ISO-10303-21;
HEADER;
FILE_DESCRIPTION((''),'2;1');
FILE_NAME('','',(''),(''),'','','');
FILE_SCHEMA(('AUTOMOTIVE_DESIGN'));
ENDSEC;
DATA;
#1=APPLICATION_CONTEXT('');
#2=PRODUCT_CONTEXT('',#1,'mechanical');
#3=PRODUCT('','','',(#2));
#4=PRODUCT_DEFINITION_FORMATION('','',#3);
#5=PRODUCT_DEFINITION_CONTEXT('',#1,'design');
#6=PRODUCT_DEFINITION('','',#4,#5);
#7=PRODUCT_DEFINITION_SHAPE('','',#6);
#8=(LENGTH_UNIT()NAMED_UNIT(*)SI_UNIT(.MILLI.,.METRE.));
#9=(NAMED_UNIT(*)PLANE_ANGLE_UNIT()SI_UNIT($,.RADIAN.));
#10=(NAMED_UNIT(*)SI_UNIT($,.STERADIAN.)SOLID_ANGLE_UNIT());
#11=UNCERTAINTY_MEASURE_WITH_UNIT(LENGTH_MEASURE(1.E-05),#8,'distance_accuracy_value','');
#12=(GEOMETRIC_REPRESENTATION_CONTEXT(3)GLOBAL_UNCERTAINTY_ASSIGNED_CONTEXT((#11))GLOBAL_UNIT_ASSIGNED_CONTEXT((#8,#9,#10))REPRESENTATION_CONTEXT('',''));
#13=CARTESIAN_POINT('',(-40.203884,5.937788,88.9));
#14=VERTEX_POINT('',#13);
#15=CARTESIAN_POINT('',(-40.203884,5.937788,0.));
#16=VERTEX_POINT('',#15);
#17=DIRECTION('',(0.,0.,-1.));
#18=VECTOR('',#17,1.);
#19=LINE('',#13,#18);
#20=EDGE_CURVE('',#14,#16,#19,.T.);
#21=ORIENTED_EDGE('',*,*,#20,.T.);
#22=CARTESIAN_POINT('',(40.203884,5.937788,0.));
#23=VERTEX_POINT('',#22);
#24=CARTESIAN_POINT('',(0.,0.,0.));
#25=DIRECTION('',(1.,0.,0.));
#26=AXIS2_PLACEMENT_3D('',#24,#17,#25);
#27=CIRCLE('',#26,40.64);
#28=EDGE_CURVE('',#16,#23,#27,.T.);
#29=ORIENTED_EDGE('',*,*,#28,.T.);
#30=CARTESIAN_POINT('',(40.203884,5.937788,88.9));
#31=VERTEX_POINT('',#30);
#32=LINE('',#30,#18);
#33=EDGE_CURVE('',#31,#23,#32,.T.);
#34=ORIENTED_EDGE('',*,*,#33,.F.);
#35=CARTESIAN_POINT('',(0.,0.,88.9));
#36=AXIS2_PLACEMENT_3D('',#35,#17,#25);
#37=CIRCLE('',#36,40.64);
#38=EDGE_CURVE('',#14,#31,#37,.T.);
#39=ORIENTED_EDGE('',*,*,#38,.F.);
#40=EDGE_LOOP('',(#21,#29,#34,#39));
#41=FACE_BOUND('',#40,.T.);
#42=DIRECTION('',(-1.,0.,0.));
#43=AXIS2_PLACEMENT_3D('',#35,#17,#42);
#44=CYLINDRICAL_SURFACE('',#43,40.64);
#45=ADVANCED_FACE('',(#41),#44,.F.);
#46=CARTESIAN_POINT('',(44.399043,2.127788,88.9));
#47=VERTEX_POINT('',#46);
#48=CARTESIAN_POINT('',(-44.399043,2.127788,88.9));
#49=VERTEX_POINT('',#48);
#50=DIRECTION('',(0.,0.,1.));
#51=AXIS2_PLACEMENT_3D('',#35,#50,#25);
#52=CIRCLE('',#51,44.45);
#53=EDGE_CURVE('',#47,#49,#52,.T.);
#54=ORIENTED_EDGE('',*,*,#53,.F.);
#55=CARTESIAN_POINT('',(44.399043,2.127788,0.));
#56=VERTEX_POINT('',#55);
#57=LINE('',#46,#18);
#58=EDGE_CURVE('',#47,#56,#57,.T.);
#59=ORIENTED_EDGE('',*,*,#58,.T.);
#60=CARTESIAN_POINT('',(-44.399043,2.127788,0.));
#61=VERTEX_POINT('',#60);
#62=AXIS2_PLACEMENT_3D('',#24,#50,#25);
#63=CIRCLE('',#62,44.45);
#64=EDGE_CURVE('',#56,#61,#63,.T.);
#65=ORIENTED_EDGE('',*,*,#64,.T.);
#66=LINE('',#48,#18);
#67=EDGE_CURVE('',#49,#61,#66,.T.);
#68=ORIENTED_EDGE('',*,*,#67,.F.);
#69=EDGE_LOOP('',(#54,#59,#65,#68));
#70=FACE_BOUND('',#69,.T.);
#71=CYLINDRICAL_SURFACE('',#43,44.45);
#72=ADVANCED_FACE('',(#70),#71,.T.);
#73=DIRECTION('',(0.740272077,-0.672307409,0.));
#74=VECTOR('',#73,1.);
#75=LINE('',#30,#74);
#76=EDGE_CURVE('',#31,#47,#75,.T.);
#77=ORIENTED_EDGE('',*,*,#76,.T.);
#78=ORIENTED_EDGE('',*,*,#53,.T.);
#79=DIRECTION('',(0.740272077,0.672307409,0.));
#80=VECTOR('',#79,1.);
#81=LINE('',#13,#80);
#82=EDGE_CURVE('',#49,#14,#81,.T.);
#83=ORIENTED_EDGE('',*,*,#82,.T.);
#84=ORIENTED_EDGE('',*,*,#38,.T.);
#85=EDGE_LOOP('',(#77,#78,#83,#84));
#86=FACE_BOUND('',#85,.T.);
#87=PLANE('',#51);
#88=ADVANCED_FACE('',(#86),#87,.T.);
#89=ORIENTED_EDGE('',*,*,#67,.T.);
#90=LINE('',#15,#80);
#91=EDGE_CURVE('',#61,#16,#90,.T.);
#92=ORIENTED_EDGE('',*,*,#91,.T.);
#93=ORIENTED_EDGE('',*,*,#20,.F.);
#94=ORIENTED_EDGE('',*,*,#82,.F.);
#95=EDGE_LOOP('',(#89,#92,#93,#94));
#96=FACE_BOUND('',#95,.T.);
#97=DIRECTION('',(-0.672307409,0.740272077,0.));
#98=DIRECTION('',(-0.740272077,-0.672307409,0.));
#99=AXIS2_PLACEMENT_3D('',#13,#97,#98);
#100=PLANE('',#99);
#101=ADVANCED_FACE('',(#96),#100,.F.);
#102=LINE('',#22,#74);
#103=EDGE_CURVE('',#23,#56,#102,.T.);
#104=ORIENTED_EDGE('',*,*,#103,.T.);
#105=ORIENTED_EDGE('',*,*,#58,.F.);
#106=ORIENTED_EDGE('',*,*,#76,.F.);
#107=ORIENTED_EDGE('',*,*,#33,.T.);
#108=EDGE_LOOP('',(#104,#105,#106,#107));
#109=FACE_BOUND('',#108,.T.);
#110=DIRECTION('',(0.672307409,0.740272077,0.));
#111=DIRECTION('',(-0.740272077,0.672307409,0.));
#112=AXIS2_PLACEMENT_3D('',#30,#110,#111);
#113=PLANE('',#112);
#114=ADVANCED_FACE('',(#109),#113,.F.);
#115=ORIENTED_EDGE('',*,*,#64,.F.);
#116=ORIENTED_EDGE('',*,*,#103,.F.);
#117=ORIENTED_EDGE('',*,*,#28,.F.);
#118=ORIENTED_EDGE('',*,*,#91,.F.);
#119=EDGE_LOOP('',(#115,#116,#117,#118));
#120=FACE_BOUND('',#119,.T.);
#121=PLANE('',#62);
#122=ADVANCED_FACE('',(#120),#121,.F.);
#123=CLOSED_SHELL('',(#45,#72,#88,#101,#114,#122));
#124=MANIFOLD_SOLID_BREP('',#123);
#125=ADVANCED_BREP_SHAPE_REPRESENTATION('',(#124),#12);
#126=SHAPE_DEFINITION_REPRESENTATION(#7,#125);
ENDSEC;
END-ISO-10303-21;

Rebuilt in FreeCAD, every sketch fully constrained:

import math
import FreeCAD as App
import Part
import Sketcher
from FreeCAD import Vector
Q = App.Units.Quantity

doc = App.newDocument("Part")
body = doc.addObject("PartDesign::Body", "Body")

# Sketch on XY plane
sketch1 = body.newObject("Sketcher::SketchObject", "Sketch")
sketch1.AttachmentSupport = (doc.getObject("XY_Plane"), [""])
sketch1.MapMode = "FlatFace"
sketch1.addGeometry(Part.LineSegment(Vector(-44.399043, 2.127788, 0), Vector(-40.203884, 5.937788, 0)), False)
sketch1.addGeometry(Part.ArcOfCircle(Part.Circle(Vector(0, 0, 0), Vector(0, 0, 1), 40.64), math.radians(8.401388), math.radians(171.598612)), False)
sketch1.addGeometry(Part.LineSegment(Vector(40.203884, 5.937788, 0), Vector(44.399043, 2.127788, 0)), False)
sketch1.addGeometry(Part.ArcOfCircle(Part.Circle(Vector(0, 0, 0), Vector(0, 0, 1), 44.45), math.radians(2.743755), math.radians(177.256245)), False)
sketch1.addConstraint(Sketcher.Constraint("Coincident", 0, 2, 1, 2))
sketch1.addConstraint(Sketcher.Constraint("Coincident", 1, 1, 2, 1))
sketch1.addConstraint(Sketcher.Constraint("Coincident", 2, 2, 3, 1))
sketch1.addConstraint(Sketcher.Constraint("Coincident", 3, 2, 0, 1))
sketch1.addConstraint(Sketcher.Constraint("Coincident", 1, 3, -1, 1))
sketch1.addConstraint(Sketcher.Constraint("Coincident", 3, 3, -1, 1))
sketch1.addConstraint(Sketcher.Constraint("Horizontal", 0, 2, 1, 1))
sketch1.addConstraint(Sketcher.Constraint("Horizontal", 2, 2, 3, 2))
sketch1.addConstraint(Sketcher.Constraint("Radius", 1, Q("1.6 in")))
sketch1.addConstraint(Sketcher.Constraint("Radius", 3, Q("1.75 in")))
sketch1.addConstraint(Sketcher.Constraint("DistanceY", 2, 2, 1, 1, Q("0.15 in")))
sketch1.addConstraint(Sketcher.Constraint("Distance", 0, Q("5.66705 mm")))
pad1 = body.newObject("PartDesign::Pad", "Pad")
pad1.Profile = sketch1
pad1.Length = Q("3.5 in")

doc.recompute()
